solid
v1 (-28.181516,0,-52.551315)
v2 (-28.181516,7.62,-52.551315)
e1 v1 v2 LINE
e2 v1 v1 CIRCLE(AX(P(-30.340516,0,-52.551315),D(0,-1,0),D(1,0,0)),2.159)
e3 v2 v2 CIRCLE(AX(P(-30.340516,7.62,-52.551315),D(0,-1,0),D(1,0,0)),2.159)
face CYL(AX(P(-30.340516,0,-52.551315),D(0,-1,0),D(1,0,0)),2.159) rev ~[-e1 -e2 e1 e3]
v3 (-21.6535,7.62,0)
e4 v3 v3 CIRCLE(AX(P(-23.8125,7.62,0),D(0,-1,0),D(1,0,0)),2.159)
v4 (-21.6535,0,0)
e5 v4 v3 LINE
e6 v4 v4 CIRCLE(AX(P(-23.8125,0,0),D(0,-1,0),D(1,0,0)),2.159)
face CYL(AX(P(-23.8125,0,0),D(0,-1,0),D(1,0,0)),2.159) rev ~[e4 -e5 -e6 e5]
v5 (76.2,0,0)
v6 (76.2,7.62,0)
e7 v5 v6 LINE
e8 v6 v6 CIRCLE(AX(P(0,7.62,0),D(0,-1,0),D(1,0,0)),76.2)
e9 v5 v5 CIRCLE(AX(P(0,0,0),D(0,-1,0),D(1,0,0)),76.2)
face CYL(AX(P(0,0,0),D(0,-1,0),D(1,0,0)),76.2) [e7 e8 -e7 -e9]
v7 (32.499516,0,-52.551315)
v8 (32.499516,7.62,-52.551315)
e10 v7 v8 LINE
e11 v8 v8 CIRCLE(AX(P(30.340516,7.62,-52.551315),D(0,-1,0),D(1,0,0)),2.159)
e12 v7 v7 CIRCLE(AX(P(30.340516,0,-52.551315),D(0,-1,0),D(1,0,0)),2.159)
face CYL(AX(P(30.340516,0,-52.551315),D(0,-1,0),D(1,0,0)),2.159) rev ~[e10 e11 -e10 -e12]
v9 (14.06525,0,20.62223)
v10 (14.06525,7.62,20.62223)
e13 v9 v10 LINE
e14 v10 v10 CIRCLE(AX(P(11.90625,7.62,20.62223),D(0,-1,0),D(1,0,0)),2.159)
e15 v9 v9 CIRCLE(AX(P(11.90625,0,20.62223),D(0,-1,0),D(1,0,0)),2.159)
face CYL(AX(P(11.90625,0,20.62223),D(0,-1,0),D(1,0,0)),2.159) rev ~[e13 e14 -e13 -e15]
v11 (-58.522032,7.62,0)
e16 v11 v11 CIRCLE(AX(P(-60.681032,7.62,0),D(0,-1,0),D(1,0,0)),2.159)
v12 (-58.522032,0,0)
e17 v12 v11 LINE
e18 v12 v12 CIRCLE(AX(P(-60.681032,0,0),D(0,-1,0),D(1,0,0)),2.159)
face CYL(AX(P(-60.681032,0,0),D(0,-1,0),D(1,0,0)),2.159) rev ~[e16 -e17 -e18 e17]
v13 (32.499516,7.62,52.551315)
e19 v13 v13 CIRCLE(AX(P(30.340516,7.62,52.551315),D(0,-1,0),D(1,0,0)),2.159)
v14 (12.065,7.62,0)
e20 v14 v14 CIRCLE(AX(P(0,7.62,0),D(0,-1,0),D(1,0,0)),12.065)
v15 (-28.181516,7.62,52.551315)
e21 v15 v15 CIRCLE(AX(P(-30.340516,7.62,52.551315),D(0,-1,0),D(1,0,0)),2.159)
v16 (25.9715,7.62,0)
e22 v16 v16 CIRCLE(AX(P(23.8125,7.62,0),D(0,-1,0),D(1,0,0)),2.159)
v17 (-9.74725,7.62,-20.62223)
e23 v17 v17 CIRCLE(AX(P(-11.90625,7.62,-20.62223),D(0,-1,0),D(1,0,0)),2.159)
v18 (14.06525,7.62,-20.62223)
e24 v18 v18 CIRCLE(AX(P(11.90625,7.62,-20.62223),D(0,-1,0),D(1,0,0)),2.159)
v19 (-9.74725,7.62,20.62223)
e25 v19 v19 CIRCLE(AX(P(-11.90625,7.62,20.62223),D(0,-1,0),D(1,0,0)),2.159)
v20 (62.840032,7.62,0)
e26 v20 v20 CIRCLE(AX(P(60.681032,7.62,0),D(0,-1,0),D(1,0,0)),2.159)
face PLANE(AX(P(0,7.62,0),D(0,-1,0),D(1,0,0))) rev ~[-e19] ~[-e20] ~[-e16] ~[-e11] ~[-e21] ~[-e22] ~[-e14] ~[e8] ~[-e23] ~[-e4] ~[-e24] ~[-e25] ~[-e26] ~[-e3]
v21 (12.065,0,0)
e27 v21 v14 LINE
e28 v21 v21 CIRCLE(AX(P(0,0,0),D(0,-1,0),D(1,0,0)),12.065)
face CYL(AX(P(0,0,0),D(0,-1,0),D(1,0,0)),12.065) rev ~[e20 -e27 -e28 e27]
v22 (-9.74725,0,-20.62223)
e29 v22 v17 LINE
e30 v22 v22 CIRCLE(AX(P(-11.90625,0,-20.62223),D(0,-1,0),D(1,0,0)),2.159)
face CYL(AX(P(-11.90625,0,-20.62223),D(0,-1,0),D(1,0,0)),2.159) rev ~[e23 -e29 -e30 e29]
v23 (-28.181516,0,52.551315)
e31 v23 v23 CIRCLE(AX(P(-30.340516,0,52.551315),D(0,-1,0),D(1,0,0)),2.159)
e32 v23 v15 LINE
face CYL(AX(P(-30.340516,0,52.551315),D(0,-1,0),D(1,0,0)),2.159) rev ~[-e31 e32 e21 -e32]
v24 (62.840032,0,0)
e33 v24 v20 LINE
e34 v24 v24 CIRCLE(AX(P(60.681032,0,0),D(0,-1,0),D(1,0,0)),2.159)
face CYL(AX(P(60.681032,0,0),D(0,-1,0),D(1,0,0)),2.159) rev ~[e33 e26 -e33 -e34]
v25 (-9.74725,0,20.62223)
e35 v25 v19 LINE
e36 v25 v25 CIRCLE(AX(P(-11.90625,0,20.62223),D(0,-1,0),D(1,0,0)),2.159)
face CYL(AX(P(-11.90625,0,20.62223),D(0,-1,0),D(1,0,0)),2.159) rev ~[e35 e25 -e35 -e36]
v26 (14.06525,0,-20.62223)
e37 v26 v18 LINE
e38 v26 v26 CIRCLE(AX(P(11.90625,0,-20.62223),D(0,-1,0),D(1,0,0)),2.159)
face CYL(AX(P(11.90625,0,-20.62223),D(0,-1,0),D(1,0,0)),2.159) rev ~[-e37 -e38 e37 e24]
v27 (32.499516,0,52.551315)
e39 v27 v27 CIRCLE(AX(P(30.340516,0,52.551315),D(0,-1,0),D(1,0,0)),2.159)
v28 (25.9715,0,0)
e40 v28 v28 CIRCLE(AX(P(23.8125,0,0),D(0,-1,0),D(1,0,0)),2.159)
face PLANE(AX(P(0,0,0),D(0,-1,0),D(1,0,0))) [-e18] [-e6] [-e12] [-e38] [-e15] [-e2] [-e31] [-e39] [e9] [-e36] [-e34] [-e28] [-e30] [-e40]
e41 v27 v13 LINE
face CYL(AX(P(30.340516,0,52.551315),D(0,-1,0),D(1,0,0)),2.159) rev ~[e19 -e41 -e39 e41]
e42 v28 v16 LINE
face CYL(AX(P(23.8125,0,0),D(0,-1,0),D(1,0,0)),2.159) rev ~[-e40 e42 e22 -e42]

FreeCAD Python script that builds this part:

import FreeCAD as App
import Part
import Sketcher
Q = App.Units.Quantity

doc = App.newDocument("Part")
body = doc.addObject("PartDesign::Body", "Body")

sketch1 = doc.addObject("Sketcher::SketchObject", "Sketch")
body.addObject(sketch1)
sketch1.AttachmentSupport = (doc.XZ_Plane, [""])
sketch1.MapMode = "FlatFace"
sketch1.addGeometry([
    Part.Circle(App.Vector(0, 0, 0), App.Vector(0, 0, 1), 76.2),
    Part.Circle(App.Vector(-30.340516, -52.551315, 0), App.Vector(0, 0, 1), 2.159),
    Part.Circle(App.Vector(-11.90625, -20.62223, 0), App.Vector(0, 0, 1), 2.159),
    Part.Circle(App.Vector(30.340516, -52.551315, 0), App.Vector(0, 0, 1), 2.159),
    Part.Circle(App.Vector(11.90625, -20.62223, 0), App.Vector(0, 0, 1), 2.159),
    Part.Circle(App.Vector(-60.681032, 0, 0), App.Vector(0, 0, 1), 2.159),
    Part.Circle(App.Vector(-23.8125, 0, 0), App.Vector(0, 0, 1), 2.159),
    Part.Circle(App.Vector(0, 0, 0), App.Vector(0, 0, 1), 12.065),
    Part.Circle(App.Vector(-11.90625, 20.62223, 0), App.Vector(0, 0, 1), 2.159),
    Part.Circle(App.Vector(-30.340516, 52.551315, 0), App.Vector(0, 0, 1), 2.159),
    Part.Circle(App.Vector(23.8125, 0, 0), App.Vector(0, 0, 1), 2.159),
    Part.Circle(App.Vector(11.90625, 20.62223, 0), App.Vector(0, 0, 1), 2.159),
    Part.Circle(App.Vector(60.681032, 0, 0), App.Vector(0, 0, 1), 2.159),
    Part.Circle(App.Vector(30.340516, 52.551315, 0), App.Vector(0, 0, 1), 2.159),
], False)
sketch1.addConstraint([
    Sketcher.Constraint("Coincident", 0, 3, -1, 1),
    Sketcher.Constraint("Coincident", 7, 3, -1, 1),
    Sketcher.Constraint("Equal", 1, 2),
    Sketcher.Constraint("Equal", 2, 3),
    Sketcher.Constraint("Equal", 3, 4),
    Sketcher.Constraint("Equal", 4, 5),
    Sketcher.Constraint("Equal", 5, 6),
    Sketcher.Constraint("Equal", 6, 8),
    Sketcher.Constraint("Equal", 8, 9),
    Sketcher.Constraint("Equal", 9, 10),
    Sketcher.Constraint("Equal", 10, 11),
    Sketcher.Constraint("Equal", 11, 12),
    Sketcher.Constraint("Equal", 12, 13),
    Sketcher.Constraint("Symmetric", 4, 3, 8, 3, -1, 1),
    Sketcher.Constraint("Symmetric", 3, 3, 9, 3, -1, 1),
    Sketcher.Constraint("Symmetric", 6, 3, 10, 3, -1, 1),
    Sketcher.Constraint("Symmetric", 2, 3, 11, 3, -1, 1),
    Sketcher.Constraint("Symmetric", 5, 3, 12, 3, -1, 1),
    Sketcher.Constraint("Symmetric", 1, 3, 13, 3, -1, 1),
    Sketcher.Constraint("Symmetric", 1, 3, 3, 3, -2),
    Sketcher.Constraint("Symmetric", 2, 3, 4, 3, -2),
    Sketcher.Constraint("PointOnObject", 5, 3, -1),
    Sketcher.Constraint("PointOnObject", 6, 3, -1),
    Sketcher.Constraint("Diameter", 0, Q("6 in")),
    Sketcher.Constraint("Diameter", 1, Q("0.17 in")),
    Sketcher.Constraint("Diameter", 7, Q("0.95 in")),
    Sketcher.Constraint("DistanceX", 2, 3, -1, 1, Q("0.46875 in")),
    Sketcher.Constraint("DistanceX", 6, 3, -1, 1, Q("0.9375 in")),
    Sketcher.Constraint("DistanceY", 2, 3, -1, 1, Q("20.62223 mm")),
    Sketcher.Constraint("DistanceX", 5, 3, 4, 3, Q("72.587282 mm")),
    Sketcher.Constraint("DistanceX", 1, 3, -1, 1, Q("30.340516 mm")),
    Sketcher.Constraint("DistanceY", 1, 3, -1, 1, Q("52.551315 mm")),
])
pad1 = doc.addObject("PartDesign::Pad", "Pad")
body.addObject(pad1)
pad1.Profile = sketch1
pad1.Length = Q("0.3 in")
pad1.Reversed = True

doc.recompute()
